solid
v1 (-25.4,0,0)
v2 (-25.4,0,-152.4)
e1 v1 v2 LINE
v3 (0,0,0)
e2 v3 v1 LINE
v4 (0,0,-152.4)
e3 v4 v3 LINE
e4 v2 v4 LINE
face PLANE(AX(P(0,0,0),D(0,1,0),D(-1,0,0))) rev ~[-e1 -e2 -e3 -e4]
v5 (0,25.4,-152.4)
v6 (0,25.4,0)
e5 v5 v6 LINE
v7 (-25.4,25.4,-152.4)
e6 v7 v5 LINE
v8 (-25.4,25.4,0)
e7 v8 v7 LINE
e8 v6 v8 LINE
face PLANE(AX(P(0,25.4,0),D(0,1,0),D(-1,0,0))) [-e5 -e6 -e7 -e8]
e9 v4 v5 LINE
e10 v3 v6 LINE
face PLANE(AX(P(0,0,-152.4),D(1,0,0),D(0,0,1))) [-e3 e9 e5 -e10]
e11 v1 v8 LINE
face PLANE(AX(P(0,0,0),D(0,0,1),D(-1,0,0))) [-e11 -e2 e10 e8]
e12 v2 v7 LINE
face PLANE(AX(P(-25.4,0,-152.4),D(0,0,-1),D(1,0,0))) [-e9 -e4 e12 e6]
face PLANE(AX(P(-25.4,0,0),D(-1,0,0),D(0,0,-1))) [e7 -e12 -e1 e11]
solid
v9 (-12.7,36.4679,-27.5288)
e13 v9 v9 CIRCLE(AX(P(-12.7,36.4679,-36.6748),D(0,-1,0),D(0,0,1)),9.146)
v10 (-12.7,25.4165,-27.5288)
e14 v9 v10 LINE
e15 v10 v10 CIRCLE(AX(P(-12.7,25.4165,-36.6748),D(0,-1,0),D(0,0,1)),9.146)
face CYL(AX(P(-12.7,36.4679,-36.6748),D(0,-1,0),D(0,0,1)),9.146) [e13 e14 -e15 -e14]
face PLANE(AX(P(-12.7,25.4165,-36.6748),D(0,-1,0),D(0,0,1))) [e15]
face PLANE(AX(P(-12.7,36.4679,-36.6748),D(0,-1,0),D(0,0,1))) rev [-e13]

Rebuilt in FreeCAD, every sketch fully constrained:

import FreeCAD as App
import Part
import Sketcher

V = App.Vector
Q = App.Units.Quantity

doc = App.newDocument("Part")
body = doc.addObject("PartDesign::Body", "Body")
body.AllowCompound = True

# Sketch on XZ plane
sketch1 = body.newObject("Sketcher::SketchObject", "Sketch")
sketch1.AttachmentSupport = (doc.getObject("XZ_Plane"), [""])
sketch1.MapMode = "FlatFace"
sketch1.addGeometry([
    Part.LineSegment(V(-25, 0, 0), V(0, 0, 0)),
    Part.LineSegment(V(0, 0, 0), V(0, -152, 0)),
    Part.LineSegment(V(0, -152, 0), V(-25, -152, 0)),
    Part.LineSegment(V(-25, -152, 0), V(-25, 0, 0)),
], False)
sketch1.addConstraint([
    Sketcher.Constraint("Coincident", 0, 2, 1, 1),
    Sketcher.Constraint("Coincident", 1, 2, 2, 1),
    Sketcher.Constraint("Coincident", 2, 2, 3, 1),
    Sketcher.Constraint("Coincident", 3, 2, 0, 1),
    Sketcher.Constraint("Horizontal", 0),
    Sketcher.Constraint("Vertical", 1),
    Sketcher.Constraint("Horizontal", 2),
    Sketcher.Constraint("Vertical", 3),
    Sketcher.Constraint("Coincident", 0, 2, -1, 1),
    Sketcher.Constraint("DistanceX", 0, 1, 0, 2, Q("1 in")),
    Sketcher.Constraint("DistanceY", 1, 2, 1, 1, Q("6 in")),
])
pad1 = body.newObject("PartDesign::Pad", "Pad")
pad1.Profile = sketch1
pad1.Length = Q("1 in")
pad1.Reversed = True

# Sketch on YZ plane
sketch2 = body.newObject("Sketcher::SketchObject", "Sketch001")
sketch2.AttachmentSupport = (doc.getObject("YZ_Plane"), [""])
sketch2.MapMode = "FlatFace"
sketch2.AttachmentOffset = App.Placement(V(0, 0, -0.5 * 25.4), App.Rotation())
sketch2.addGeometry([
    Part.LineSegment(V(36, -28, 0), V(25, -28, 0)),
    Part.LineSegment(V(25, -28, 0), V(25, -37, 0)),
    Part.LineSegment(V(25, -37, 0), V(36, -37, 0)),
    Part.LineSegment(V(36, -37, 0), V(36, -28, 0)),
], False)
sketch2.addGeometry(Part.LineSegment(V(36, -37, 0), V(25, -37, 0)), True)  # axis
sketch2.addConstraint([
    Sketcher.Constraint("Coincident", 0, 2, 1, 1),
    Sketcher.Constraint("Coincident", 1, 2, 2, 1),
    Sketcher.Constraint("Coincident", 2, 2, 3, 1),
    Sketcher.Constraint("Coincident", 3, 2, 0, 1),
    Sketcher.Constraint("Horizontal", 0),
    Sketcher.Constraint("Vertical", 1),
    Sketcher.Constraint("Horizontal", 2),
    Sketcher.Constraint("Vertical", 3),
    Sketcher.Constraint("Horizontal", 4),
    Sketcher.Constraint("Coincident", 4, 1, 2, 2),
    Sketcher.Constraint("Vertical", 0, 2, 4, 2),
    Sketcher.Constraint("DistanceX", 0, 2, 0, 1, Q("0.4351 in")),
    Sketcher.Constraint("DistanceY", 1, 2, 1, 1, Q("9.146 mm")),
    Sketcher.Constraint("DistanceY", 0, 2, -1, 1, Q("1.0838 in")),
    Sketcher.Constraint("DistanceX", -1, 1, 0, 2, Q("25.4165 mm")),
])
revolution = body.newObject("PartDesign::Revolution", "Revolution")
revolution.Profile = sketch2
revolution.ReferenceAxis = (sketch2, ["Axis0"])
revolution.Angle = 360

doc.recompute()
